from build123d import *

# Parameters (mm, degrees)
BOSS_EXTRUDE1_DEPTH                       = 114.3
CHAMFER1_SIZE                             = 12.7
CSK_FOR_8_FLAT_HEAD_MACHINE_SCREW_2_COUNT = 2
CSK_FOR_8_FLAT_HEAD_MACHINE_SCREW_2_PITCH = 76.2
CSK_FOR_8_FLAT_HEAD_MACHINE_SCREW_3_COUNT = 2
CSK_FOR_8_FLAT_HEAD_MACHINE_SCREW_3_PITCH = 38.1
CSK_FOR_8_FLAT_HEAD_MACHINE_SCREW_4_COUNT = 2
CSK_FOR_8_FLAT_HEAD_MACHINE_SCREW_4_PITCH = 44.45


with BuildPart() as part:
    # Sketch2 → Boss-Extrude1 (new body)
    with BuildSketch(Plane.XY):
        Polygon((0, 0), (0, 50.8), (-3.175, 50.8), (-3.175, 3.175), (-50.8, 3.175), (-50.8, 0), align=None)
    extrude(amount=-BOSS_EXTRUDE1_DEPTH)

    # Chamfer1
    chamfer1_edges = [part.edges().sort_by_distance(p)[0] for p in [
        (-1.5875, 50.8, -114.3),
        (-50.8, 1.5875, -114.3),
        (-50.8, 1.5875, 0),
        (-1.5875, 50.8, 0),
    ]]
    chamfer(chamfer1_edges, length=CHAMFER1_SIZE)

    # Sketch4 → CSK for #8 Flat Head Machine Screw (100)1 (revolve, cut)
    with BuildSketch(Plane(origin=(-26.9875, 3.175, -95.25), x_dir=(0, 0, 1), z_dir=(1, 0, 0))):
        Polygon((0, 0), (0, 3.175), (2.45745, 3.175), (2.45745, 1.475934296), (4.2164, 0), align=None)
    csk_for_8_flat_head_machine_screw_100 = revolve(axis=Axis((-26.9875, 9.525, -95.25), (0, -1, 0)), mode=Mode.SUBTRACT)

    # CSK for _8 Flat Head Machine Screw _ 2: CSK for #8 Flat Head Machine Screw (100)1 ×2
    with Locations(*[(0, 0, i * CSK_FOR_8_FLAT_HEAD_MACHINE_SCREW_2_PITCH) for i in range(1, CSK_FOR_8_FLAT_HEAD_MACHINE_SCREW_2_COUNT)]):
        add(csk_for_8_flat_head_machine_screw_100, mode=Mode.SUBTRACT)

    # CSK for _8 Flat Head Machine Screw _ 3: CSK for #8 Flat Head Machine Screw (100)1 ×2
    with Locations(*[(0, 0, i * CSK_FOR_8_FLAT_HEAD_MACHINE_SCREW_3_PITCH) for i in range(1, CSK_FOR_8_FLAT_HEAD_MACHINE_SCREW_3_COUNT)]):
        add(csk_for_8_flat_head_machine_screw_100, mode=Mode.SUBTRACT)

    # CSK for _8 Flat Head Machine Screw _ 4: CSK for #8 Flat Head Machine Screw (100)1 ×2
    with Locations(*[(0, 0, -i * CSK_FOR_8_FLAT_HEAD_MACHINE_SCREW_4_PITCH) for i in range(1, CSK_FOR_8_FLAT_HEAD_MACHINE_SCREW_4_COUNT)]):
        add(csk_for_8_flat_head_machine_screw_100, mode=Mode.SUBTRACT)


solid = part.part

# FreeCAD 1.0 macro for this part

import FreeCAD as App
import Part
import Sketcher
from FreeCAD import Vector
Q = App.Units.Quantity


def edges_at(feature, points):
    """Names of the edges that pass closest to the given points."""
    edges = feature.Shape.Edges
    near = lambda p: min(range(len(edges)), key=lambda i: edges[i].distToShape(Part.Vertex(*p))[0])
    return sorted({f"Edge{near(p) + 1}" for p in points})


def add_polygon(sketch, points):
    """Adds a closed chain of lines whose ends are joined by coincident constraints."""
    first, n = sketch.GeometryCount, len(points)
    for a, b in zip(points, points[1:] + points[:1]):
        sketch.addGeometry(Part.LineSegment(App.Vector(*a, 0), App.Vector(*b, 0)), False)
    for i in range(n):
        sketch.addConstraint(Sketcher.Constraint("Coincident", first + i, 2, first + (i + 1) % n, 1))

doc = App.newDocument("Part")
body = doc.addObject("PartDesign::Body", "Body")

# Sketch on XY plane
sketch1 = body.newObject("Sketcher::SketchObject", "Sketch")
sketch1.AttachmentSupport = (doc.getObject("XY_Plane"), [""])
sketch1.MapMode = "FlatFace"
add_polygon(sketch1, [(0, 0), (0, 50.8), (-3.175, 50.8), (-3.175, 3.175), (-50.8, 3.175), (-50.8, 0)])  # lines 0-5
sketch1.addConstraint([
    Sketcher.Constraint("Vertical", 0),
    Sketcher.Constraint("Horizontal", 1),
    Sketcher.Constraint("Vertical", 2),
    Sketcher.Constraint("Horizontal", 3),
    Sketcher.Constraint("Vertical", 4),
    Sketcher.Constraint("Horizontal", 5),
    Sketcher.Constraint("Coincident", 5, 2, -1, 1),
    Sketcher.Constraint("Equal", 5, 0),
    Sketcher.Constraint("Equal", 3, 2),
    Sketcher.Constraint("DistanceX", 5, 1, 5, 2, Q("2 in")),
    Sketcher.Constraint("DistanceX", 1, 2, 1, 1, Q("0.125 in")),
])
pad1 = body.newObject("PartDesign::Pad", "Pad")
pad1.Profile = sketch1
pad1.Length = Q("4.5 in")
pad1.Reversed = True
doc.recompute()

chamfer = body.newObject("PartDesign::Chamfer", "Chamfer")
chamfer.Base = (pad1, edges_at(pad1, [
    (-1.587, 50.8, -114.3),
    (-50.8, 1.587, -114.3),
    (-50.8, 1.587, 0),
    (-1.587, 50.8, 0),
]))
chamfer.Size = Q("0.5 in")

# Sketch on YZ plane
sketch2 = body.newObject("Sketcher::SketchObject", "Sketch001")
sketch2.AttachmentSupport = (doc.getObject("YZ_Plane"), [""])
sketch2.MapMode = "FlatFace"
sketch2.AttachmentOffset = App.Placement(Vector(0, 0, -1.0625 * 25.4), App.Rotation())
add_polygon(sketch2, [(0, -95.25), (3.175, -95.25), (3.175, -91.0336), (1.699066, -92.79255), (0, -92.79255)])  # lines 0-4
sketch2.addGeometry(Part.LineSegment(Vector(3.175, -95.25, 0), Vector(0, -95.25, 0)), True)  # axis
sketch2.addConstraint([
    Sketcher.Constraint("Horizontal", 0),
    Sketcher.Constraint("Vertical", 1),
    Sketcher.Constraint("Horizontal", 3),
    Sketcher.Constraint("Vertical", 4),
    Sketcher.Constraint("Horizontal", 5),
    Sketcher.Constraint("Coincident", 5, 1, 0, 2),
    Sketcher.Constraint("PointOnObject", 3, 2, -2),
    Sketcher.Constraint("PointOnObject", 5, 2, -2),
    Sketcher.Constraint("Angle", 2, Q("-130 deg")),
    Sketcher.Constraint("DistanceX", 0, 1, 0, 2, Q("0.125 in")),
    Sketcher.Constraint("DistanceY", 1, 1, 1, 2, Q("0.166 in")),
    Sketcher.Constraint("DistanceY", 0, 2, -1, 1, Q("3.75 in")),
    Sketcher.Constraint("DistanceY", 4, 2, 4, 1, 2.45745),
])
groove = body.newObject("PartDesign::Groove", "Groove")
groove.Profile = sketch2
groove.ReferenceAxis = (sketch2, ["Axis0"])
groove.Angle = 360
doc.recompute()

linearpattern = body.newObject("PartDesign::LinearPattern", "LinearPattern")
linearpattern.Originals = [groove]
linearpattern.Direction = (doc.getObject("Z_Axis"), [""])
linearpattern.Mode = "offset"
linearpattern.Offset = Q("3 in")
linearpattern.Occurrences = 2
body.Tip = linearpattern
doc.recompute()

linearpattern2 = body.newObject("PartDesign::LinearPattern", "LinearPattern001")
linearpattern2.Originals = [groove]
linearpattern2.Direction = (doc.getObject("Z_Axis"), [""])
linearpattern2.Mode = "offset"
linearpattern2.Offset = Q("1.5 in")
linearpattern2.Occurrences = 2
body.Tip = linearpattern2
doc.recompute()

linearpattern3 = body.newObject("PartDesign::LinearPattern", "LinearPattern002")
linearpattern3.Originals = [groove]
linearpattern3.Direction = (doc.getObject("Z_Axis"), [""])
linearpattern3.Mode = "offset"
linearpattern3.Offset = Q("1.75 in")
linearpattern3.Occurrences = 2
linearpattern3.Reversed = True
body.Tip = linearpattern3

doc.recompute()
